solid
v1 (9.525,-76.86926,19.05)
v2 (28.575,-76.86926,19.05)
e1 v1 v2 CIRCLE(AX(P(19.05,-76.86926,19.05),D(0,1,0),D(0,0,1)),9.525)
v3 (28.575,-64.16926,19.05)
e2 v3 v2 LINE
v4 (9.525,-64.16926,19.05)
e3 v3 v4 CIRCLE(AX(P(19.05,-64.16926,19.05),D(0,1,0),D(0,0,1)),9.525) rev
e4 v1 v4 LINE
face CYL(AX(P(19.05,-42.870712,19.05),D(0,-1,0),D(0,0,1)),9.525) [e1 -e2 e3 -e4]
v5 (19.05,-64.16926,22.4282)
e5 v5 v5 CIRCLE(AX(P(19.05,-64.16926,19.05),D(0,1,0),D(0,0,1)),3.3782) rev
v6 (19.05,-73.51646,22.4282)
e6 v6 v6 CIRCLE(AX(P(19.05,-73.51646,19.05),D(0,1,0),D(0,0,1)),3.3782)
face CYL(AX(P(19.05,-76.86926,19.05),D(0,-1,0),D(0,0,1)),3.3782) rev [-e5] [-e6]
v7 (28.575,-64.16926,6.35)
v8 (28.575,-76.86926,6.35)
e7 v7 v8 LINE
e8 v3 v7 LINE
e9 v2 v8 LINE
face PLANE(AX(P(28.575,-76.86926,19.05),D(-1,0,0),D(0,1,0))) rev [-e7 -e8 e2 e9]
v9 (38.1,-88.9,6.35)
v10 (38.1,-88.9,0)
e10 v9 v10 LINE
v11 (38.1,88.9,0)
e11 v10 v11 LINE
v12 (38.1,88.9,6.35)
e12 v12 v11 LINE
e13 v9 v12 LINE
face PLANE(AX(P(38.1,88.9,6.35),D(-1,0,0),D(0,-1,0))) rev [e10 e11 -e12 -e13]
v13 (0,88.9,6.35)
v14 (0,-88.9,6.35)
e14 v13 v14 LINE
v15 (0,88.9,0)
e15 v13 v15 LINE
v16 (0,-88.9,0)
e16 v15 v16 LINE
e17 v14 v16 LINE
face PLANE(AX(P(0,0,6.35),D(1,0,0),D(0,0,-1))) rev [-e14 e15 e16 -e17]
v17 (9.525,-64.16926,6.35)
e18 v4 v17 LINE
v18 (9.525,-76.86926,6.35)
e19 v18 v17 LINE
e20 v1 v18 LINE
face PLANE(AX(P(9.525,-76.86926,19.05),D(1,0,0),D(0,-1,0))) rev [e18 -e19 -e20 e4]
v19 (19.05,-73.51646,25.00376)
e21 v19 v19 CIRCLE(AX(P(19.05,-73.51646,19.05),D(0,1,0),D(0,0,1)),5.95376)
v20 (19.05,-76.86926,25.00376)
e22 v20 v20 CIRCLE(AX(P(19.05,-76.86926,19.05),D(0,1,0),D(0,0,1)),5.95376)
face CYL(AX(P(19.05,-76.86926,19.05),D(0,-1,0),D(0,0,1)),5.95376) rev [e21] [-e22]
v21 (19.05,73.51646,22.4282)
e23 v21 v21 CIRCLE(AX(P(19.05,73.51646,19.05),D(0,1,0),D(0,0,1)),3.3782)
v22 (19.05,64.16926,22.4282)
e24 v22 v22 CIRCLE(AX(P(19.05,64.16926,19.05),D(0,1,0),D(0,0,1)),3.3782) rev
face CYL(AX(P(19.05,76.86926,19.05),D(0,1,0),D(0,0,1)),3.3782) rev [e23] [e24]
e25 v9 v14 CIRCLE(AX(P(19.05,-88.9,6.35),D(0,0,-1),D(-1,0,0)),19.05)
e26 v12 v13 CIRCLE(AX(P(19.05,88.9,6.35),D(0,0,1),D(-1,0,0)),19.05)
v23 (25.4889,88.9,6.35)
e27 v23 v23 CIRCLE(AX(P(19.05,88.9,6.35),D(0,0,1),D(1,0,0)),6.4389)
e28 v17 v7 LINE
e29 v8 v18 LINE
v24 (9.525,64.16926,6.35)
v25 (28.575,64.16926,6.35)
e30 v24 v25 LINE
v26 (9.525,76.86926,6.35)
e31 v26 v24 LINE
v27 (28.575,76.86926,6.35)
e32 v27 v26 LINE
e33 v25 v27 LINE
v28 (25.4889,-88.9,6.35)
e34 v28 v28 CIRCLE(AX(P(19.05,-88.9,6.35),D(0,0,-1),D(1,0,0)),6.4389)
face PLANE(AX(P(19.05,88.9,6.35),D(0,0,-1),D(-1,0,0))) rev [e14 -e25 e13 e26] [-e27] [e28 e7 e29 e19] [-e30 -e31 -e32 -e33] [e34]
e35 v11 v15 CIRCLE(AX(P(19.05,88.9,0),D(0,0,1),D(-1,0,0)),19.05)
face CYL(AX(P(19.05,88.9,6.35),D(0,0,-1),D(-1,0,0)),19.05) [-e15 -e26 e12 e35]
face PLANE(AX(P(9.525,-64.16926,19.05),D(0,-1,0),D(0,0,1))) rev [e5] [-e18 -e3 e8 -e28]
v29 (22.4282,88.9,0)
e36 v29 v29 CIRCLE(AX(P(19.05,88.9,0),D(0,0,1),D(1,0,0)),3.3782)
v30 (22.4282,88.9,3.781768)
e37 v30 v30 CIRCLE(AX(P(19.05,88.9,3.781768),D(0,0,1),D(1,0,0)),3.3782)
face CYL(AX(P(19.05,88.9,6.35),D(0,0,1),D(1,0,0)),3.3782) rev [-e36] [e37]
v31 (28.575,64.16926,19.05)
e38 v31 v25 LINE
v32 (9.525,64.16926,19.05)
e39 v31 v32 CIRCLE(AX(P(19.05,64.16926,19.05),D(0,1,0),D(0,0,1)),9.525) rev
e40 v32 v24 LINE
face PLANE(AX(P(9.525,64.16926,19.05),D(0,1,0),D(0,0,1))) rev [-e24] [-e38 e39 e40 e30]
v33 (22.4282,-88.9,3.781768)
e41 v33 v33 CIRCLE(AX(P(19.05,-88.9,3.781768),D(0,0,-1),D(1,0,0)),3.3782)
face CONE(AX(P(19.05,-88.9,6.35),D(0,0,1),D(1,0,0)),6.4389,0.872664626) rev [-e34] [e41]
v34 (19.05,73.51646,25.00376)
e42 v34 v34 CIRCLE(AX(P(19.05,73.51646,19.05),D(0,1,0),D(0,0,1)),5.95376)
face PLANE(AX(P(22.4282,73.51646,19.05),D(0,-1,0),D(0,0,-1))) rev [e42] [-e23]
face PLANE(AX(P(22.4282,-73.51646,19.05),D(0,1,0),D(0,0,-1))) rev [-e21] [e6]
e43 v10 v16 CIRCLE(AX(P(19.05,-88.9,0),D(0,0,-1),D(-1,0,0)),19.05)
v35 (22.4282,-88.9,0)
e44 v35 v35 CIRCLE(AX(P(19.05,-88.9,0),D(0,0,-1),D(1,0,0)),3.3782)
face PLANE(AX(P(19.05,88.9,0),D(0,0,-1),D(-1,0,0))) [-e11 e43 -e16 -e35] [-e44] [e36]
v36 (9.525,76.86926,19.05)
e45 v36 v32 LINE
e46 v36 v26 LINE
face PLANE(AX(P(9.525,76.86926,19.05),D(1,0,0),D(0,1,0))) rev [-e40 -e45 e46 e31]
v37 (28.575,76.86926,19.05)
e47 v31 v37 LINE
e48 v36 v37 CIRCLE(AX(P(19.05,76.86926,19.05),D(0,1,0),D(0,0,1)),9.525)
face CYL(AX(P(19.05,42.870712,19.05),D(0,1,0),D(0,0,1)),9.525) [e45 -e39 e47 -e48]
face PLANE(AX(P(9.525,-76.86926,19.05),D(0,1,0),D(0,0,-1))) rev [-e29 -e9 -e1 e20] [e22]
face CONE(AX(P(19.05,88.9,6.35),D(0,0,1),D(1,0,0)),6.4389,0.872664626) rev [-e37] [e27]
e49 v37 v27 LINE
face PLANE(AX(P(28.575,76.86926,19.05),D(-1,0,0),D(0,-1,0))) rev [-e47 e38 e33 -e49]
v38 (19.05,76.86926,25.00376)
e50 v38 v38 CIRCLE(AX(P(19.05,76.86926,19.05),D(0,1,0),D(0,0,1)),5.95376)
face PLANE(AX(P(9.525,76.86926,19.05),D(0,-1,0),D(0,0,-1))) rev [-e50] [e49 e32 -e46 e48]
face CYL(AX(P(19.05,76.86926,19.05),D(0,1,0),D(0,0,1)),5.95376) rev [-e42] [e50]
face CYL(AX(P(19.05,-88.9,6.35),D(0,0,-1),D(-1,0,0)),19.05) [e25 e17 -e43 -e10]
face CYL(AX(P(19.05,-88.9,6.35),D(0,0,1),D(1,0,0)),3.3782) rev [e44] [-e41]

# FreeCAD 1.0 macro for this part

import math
import FreeCAD as App
import Part
import Sketcher

V = App.Vector
Q = App.Units.Quantity


def add_polygon(sketch, points):
    """Adds a closed chain of lines whose ends are joined by coincident constraints."""
    first, n = sketch.GeometryCount, len(points)
    for a, b in zip(points, points[1:] + points[:1]):
        sketch.addGeometry(Part.LineSegment(App.Vector(*a, 0), App.Vector(*b, 0)), False)
    for i in range(n):
        sketch.addConstraint(Sketcher.Constraint("Coincident", first + i, 2, first + (i + 1) % n, 1))

doc = App.newDocument("Part")
body = doc.addObject("PartDesign::Body", "Body")

sketch1 = body.newObject("Sketcher::SketchObject", "Sketch")
sketch1.AttachmentSupport = (doc.getObject("XY_Plane"), [""])
sketch1.MapMode = "FlatFace"
sketch1.addGeometry([
    Part.LineSegment(V(0, 89, 0), V(0, 0, 0)),
    Part.LineSegment(V(0, 0, 0), V(38, 0, 0)),
    Part.LineSegment(V(38, 0, 0), V(38, 89, 0)),
    Part.ArcOfCircle(Part.Circle(V(19, 89, 0), V(0, 0, 1), 19), math.radians(0), math.radians(180)),
], False)
sketch1.addConstraint([
    Sketcher.Constraint("Coincident", 0, 2, 1, 1),
    Sketcher.Constraint("Coincident", 1, 2, 2, 1),
    Sketcher.Constraint("Tangent", 2, 2, 3, 1),
    Sketcher.Constraint("Tangent", 3, 2, 0, 1),
    Sketcher.Constraint("Vertical", 0),
    Sketcher.Constraint("Horizontal", 1),
    Sketcher.Constraint("Vertical", 2),
    Sketcher.Constraint("Coincident", 0, 2, -1, 1),
    Sketcher.Constraint("Radius", 3, Q("0.75 in")),
    Sketcher.Constraint("DistanceY", 0, 2, 0, 1, Q("3.5 in")),
])
pad1 = body.newObject("PartDesign::Pad", "Pad")
pad1.Profile = sketch1
pad1.Length = Q("0.25 in")

sketch2 = body.newObject("Sketcher::SketchObject", "Sketch001")
sketch2.AttachmentSupport = (doc.getObject("XY_Plane"), [""])
sketch2.MapMode = "FlatFace"
sketch2.AttachmentOffset = App.Placement(V(0, 0, 0.25 * 25.4), App.Rotation())
sketch2.addGeometry(Part.Circle(V(19.1, 88.9, 0), V(0, 0, 1), 3.4), False)
sketch2.addConstraint([
    Sketcher.Constraint("Diameter", 0, Q("0.266 in")),
    Sketcher.Constraint("DistanceY", -1, 1, 0, 3, Q("3.5 in")),
    Sketcher.Constraint("DistanceX", -1, 1, 0, 3, Q("0.75 in")),
])
doc.recompute()
hole = body.newObject("PartDesign::Hole", "Hole")
hole.Profile = sketch2
hole.ThreadType = "None"
hole.Diameter = Q("0.266 in")
hole.DepthType = "ThroughAll"
hole.HoleCutType = "Countersink"
hole.HoleCutDiameter = Q("0.507 in")
hole.HoleCutCountersinkAngle = 100

sketch3 = body.newObject("Sketcher::SketchObject", "Sketch002")
sketch3.AttachmentSupport = (doc.getObject("XY_Plane"), [""])
sketch3.MapMode = "FlatFace"
sketch3.AttachmentOffset = App.Placement(V(0, 0, 0.25 * 25.4), App.Rotation())
add_polygon(sketch3, [(10, 77), (10, 64), (29, 64), (29, 77)])
sketch3.addConstraint([
    Sketcher.Constraint("Vertical", 0),
    Sketcher.Constraint("Horizontal", 1),
    Sketcher.Constraint("Vertical", 2),
    Sketcher.Constraint("Horizontal", 3),
    Sketcher.Constraint("DistanceY", 0, 2, 0, 1, Q("0.5 in")),
    Sketcher.Constraint("DistanceX", 1, 1, 1, 2, Q("0.75 in")),
    Sketcher.Constraint("DistanceX", -1, 1, 0, 2, Q("0.375 in")),
    Sketcher.Constraint("DistanceY", -1, 1, 0, 2, 64.16926),
])
pad2 = body.newObject("PartDesign::Pad", "Pad001")
pad2.Profile = sketch3
pad2.Length = Q("0.5 in")

sketch4 = body.newObject("Sketcher::SketchObject", "Sketch003")
sketch4.AttachmentSupport = (doc.getObject("XZ_Plane"), [""])
sketch4.MapMode = "FlatFace"
sketch4.AttachmentOffset = App.Placement(V(0, 0, -76.86926), App.Rotation())
sketch4.addGeometry([
    Part.LineSegment(V(29, 19, 0), V(10, 19, 0)),
    Part.ArcOfCircle(Part.Circle(V(19, 19, 0), V(0, 0, 1), 10), math.radians(0), math.radians(180)),
], False)
sketch4.addConstraint([
    Sketcher.Constraint("Coincident", 0, 1, 1, 1),
    Sketcher.Constraint("Coincident", 1, 2, 0, 2),
    Sketcher.Constraint("Horizontal", 0),
    Sketcher.Constraint("Horizontal", 1, 3, 0, 1),
    Sketcher.Constraint("Radius", 1, Q("0.375 in")),
    Sketcher.Constraint("DistanceX", -1, 1, 1, 3, Q("0.75 in")),
    Sketcher.Constraint("DistanceY", -1, 1, 1, 3, Q("0.75 in")),
])
pad3 = body.newObject("PartDesign::Pad", "Pad002")
pad3.Profile = sketch4
pad3.Length = Q("0.5 in")

sketch5 = body.newObject("Sketcher::SketchObject", "Sketch004")
sketch5.AttachmentSupport = (doc.getObject("XZ_Plane"), [""])
sketch5.MapMode = "FlatFace"
sketch5.AttachmentOffset = App.Placement(V(0, 0, -76.86926), App.Rotation())
sketch5.addGeometry(Part.Circle(V(19.1, 19.1, 0), V(0, 0, 1), 3.4), False)
sketch5.addConstraint([
    Sketcher.Constraint("Diameter", 0, Q("0.266 in")),
    Sketcher.Constraint("DistanceX", -1, 1, 0, 3, Q("0.75 in")),
    Sketcher.Constraint("DistanceY", -1, 1, 0, 3, Q("0.75 in")),
])
doc.recompute()
hole2 = body.newObject("PartDesign::Hole", "Hole001")
hole2.Profile = sketch5
hole2.ThreadType = "None"
hole2.Diameter = Q("0.266 in")
hole2.DepthType = "ThroughAll"
hole2.HoleCutType = "Counterbore"
hole2.HoleCutDiameter = Q("0.4688 in")
hole2.HoleCutDepth = Q("0.132 in")
hole2.Reversed = True
body2 = doc.addObject("PartDesign::Body", "Body001")
doc.recompute()

body2.BaseFeature = body
doc.recompute()

mirroring = doc.addObject("Part::Mirroring", "Mirroring")
mirroring.Source = body
mirroring.Base = V(0, 0, 6.35)
mirroring.Normal = V(0, 1, 0)
body3 = doc.addObject("PartDesign::Body", "Body002")
body3.BaseFeature = mirroring
boolean = body2.newObject("PartDesign::Boolean", "Boolean")
boolean.Type = "Fuse"
boolean.addObjects([body3])
doc.recompute()
mirroring.Visibility = False

doc.recompute()
